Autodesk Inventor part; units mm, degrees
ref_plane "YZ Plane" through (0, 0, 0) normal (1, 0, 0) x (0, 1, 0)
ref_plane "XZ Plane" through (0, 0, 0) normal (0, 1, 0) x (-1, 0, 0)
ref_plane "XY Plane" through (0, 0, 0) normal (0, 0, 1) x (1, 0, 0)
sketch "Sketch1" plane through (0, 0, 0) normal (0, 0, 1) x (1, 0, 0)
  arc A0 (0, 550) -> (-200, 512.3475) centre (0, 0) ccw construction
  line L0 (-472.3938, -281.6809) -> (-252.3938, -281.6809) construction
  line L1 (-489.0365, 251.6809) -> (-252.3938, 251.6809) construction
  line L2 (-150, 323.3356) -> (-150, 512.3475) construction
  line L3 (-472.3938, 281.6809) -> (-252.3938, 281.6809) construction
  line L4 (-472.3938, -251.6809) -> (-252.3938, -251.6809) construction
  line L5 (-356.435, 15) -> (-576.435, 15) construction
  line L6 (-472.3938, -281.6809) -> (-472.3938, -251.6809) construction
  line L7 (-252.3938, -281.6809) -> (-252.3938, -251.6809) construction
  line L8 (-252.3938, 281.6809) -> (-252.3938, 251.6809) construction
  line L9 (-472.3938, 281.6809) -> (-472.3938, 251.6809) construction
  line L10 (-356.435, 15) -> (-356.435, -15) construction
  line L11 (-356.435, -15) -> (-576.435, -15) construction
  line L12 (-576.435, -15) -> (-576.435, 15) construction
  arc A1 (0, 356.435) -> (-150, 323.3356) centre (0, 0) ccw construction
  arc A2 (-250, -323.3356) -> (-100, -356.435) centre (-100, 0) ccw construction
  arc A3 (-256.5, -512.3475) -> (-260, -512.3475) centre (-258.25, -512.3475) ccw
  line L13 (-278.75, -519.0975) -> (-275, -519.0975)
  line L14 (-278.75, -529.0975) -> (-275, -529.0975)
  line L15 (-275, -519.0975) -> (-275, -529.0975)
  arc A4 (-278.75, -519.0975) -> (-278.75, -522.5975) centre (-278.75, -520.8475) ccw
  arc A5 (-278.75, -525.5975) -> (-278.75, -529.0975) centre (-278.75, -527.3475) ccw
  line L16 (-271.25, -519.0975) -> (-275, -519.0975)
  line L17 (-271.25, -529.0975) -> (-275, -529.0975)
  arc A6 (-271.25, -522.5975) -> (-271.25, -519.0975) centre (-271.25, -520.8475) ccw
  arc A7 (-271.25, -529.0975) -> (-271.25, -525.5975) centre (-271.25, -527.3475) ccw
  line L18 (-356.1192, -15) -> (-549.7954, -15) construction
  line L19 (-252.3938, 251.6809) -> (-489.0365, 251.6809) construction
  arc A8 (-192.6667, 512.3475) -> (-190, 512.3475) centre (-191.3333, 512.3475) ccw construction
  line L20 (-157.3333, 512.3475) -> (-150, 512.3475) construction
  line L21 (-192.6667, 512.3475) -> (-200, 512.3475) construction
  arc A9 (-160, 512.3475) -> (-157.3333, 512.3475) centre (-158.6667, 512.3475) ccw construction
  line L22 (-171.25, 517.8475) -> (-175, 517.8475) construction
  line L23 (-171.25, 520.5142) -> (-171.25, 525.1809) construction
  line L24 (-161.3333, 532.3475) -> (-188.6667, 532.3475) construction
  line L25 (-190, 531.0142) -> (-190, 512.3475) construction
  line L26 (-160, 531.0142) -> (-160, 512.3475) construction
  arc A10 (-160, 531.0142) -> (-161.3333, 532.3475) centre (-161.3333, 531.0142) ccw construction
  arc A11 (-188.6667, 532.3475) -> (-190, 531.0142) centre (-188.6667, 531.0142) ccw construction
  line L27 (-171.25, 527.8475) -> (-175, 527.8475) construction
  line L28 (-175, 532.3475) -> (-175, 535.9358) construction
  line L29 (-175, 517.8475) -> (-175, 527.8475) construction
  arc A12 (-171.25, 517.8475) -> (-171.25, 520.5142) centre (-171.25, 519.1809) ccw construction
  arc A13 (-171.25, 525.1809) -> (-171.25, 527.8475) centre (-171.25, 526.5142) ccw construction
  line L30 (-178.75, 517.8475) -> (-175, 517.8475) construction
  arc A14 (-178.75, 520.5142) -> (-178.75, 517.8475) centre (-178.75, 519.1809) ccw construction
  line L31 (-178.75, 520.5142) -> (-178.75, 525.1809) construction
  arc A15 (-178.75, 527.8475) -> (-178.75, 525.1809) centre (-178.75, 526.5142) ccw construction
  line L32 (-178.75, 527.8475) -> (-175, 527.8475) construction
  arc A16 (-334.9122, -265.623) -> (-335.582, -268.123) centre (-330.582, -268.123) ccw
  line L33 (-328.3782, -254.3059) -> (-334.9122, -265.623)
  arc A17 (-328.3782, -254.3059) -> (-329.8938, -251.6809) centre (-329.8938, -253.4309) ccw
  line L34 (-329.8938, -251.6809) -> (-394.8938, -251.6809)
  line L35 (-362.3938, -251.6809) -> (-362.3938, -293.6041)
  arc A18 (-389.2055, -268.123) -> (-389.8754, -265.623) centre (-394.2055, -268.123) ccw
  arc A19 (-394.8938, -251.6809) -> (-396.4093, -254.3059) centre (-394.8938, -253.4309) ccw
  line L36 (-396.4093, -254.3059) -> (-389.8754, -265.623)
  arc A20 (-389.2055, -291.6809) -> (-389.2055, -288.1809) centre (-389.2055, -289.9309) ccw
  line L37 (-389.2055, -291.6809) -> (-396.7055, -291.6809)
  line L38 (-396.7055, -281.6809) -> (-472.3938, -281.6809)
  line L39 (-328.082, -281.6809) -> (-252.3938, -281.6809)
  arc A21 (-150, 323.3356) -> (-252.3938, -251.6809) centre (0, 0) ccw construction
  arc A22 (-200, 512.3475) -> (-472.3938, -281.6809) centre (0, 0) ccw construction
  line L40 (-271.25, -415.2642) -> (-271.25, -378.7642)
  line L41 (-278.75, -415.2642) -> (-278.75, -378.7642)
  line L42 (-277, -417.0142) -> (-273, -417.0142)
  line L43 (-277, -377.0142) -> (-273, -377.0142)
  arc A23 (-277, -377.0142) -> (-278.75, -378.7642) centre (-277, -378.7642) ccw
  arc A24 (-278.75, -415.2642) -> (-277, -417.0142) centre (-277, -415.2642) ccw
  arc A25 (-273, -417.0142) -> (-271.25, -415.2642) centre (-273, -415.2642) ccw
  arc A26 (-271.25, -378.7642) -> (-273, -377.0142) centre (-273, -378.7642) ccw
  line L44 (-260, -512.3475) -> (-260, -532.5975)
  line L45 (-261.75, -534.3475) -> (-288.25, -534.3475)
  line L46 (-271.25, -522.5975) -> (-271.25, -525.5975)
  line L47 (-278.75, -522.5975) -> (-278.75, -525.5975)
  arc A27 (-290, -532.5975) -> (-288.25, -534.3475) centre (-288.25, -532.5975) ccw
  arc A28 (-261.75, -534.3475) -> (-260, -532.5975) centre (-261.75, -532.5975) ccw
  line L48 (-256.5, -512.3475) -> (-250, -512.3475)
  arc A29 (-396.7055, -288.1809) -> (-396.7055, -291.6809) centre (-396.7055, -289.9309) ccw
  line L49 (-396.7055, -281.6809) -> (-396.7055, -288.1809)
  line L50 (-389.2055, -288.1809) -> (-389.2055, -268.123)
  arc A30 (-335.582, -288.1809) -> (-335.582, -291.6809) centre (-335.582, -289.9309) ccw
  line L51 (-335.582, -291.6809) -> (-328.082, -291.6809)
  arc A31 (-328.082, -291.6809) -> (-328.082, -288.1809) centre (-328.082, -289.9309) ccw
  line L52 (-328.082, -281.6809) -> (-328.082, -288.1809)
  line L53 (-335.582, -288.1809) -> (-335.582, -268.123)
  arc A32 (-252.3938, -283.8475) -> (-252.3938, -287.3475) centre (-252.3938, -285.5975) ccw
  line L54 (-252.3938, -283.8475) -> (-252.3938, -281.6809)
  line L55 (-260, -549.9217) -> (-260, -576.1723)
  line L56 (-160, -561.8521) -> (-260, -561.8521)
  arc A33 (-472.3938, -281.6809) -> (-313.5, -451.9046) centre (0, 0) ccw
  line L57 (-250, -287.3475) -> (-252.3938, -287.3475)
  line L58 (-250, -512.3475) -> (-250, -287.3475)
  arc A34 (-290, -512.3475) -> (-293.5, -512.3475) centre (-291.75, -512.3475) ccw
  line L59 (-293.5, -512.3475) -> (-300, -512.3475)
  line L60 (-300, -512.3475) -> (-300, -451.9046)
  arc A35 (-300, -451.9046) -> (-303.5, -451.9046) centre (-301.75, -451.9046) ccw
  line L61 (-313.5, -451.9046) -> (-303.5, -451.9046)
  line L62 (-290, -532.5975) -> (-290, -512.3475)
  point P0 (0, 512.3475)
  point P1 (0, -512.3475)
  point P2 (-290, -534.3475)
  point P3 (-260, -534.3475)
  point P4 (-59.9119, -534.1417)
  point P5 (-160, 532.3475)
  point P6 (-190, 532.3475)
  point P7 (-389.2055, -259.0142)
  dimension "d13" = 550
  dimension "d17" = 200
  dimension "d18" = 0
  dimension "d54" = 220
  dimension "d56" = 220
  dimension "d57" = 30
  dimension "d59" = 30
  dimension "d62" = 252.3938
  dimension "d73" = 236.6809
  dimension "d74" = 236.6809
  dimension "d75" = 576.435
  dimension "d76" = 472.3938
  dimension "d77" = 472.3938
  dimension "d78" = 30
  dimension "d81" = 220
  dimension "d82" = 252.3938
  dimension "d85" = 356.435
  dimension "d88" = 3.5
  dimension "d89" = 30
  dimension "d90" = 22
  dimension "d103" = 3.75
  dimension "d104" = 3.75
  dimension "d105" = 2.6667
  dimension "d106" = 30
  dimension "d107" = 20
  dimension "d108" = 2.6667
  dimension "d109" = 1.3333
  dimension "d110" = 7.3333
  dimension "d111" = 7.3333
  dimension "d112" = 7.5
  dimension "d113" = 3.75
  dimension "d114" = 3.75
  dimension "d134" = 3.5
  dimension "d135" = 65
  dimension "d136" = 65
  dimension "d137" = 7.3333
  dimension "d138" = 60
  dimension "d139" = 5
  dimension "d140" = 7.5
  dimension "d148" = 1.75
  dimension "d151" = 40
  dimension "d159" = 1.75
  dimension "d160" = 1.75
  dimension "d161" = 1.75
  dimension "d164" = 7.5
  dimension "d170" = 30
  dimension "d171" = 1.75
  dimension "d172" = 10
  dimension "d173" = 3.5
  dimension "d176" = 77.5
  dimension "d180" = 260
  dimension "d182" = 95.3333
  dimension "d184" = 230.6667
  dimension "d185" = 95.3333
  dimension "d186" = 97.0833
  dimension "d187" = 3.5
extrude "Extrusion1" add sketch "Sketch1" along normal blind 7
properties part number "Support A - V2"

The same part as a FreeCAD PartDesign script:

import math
import FreeCAD as App
import Part
import Sketcher
from FreeCAD import Vector
Q = App.Units.Quantity

doc = App.newDocument("Part")
body = doc.addObject("PartDesign::Body", "Body")

sketch1 = doc.addObject("Sketcher::SketchObject", "Sketch")
body.addObject(sketch1)
sketch1.AttachmentSupport = (doc.XY_Plane, [""])
sketch1.MapMode = "FlatFace"
sketch1.addGeometry(Part.ArcOfCircle(Part.Circle(Vector(-258.25, -512.3475, 0), Vector(0, 0, 1), 1.75), math.radians(0), math.radians(180)), False)
sketch1.addGeometry(Part.LineSegment(Vector(-256.5, -512.3475, 0), Vector(-250, -512.3475, 0)), False)
sketch1.addGeometry(Part.LineSegment(Vector(-250, -512.3475, 0), Vector(-250, -287.3475, 0)), False)
sketch1.addGeometry(Part.LineSegment(Vector(-250, -287.3475, 0), Vector(-252.3938, -287.3475, 0)), False)
sketch1.addGeometry(Part.ArcOfCircle(Part.Circle(Vector(-252.3938, -285.5975, 0), Vector(0, 0, 1), 1.75), math.radians(90), math.radians(270)), False)
sketch1.addGeometry(Part.LineSegment(Vector(-252.3938, -283.8475, 0), Vector(-252.3938, -281.6809, 0)), False)
sketch1.addGeometry(Part.LineSegment(Vector(-252.3938, -281.6809, 0), Vector(-328.082, -281.6809, 0)), False)
sketch1.addGeometry(Part.LineSegment(Vector(-328.082, -281.6809, 0), Vector(-328.082, -288.1809, 0)), False)
sketch1.addGeometry(Part.ArcOfCircle(Part.Circle(Vector(-328.082, -289.9309, 0), Vector(0, 0, 1), 1.75), math.radians(-90), math.radians(90)), False)
sketch1.addGeometry(Part.LineSegment(Vector(-328.082, -291.6809, 0), Vector(-335.582, -291.6809, 0)), False)
sketch1.addGeometry(Part.ArcOfCircle(Part.Circle(Vector(-335.582, -289.9309, 0), Vector(0, 0, 1), 1.75), math.radians(90), math.radians(270)), False)
sketch1.addGeometry(Part.LineSegment(Vector(-335.582, -288.1809, 0), Vector(-335.582, -268.123, 0)), False)
sketch1.addGeometry(Part.ArcOfCircle(Part.Circle(Vector(-330.582, -268.123, 0), Vector(0, 0, 1), 5.000063), math.radians(150.000418), math.radians(180)), False)
sketch1.addGeometry(Part.LineSegment(Vector(-334.9122, -265.623, 0), Vector(-328.3782, -254.3059, 0)), False)
sketch1.addGeometry(Part.ArcOfCircle(Part.Circle(Vector(-329.8938, -253.4309, 0), Vector(0, 0, 1), 1.750048), math.radians(-29.999091), math.radians(90)), False)
sketch1.addGeometry(Part.LineSegment(Vector(-329.8938, -251.6809, 0), Vector(-394.8938, -251.6809, 0)), False)
sketch1.addGeometry(Part.ArcOfCircle(Part.Circle(Vector(-394.8938, -253.4309, 0), Vector(0, 0, 1), 1.75), math.radians(90), math.radians(210.000728)), False)
sketch1.addGeometry(Part.LineSegment(Vector(-396.4093, -254.3059, 0), Vector(-389.8754, -265.623, 0)), False)
sketch1.addGeometry(Part.ArcOfCircle(Part.Circle(Vector(-394.2055, -268.123, 0), Vector(0, 0, 1), 5), math.radians(0), math.radians(30.000155)), False)
sketch1.addGeometry(Part.LineSegment(Vector(-389.2055, -268.123, 0), Vector(-389.2055, -288.1809, 0)), False)
sketch1.addGeometry(Part.ArcOfCircle(Part.Circle(Vector(-389.2055, -289.9309, 0), Vector(0, 0, 1), 1.75), math.radians(-90), math.radians(90)), False)
sketch1.addGeometry(Part.LineSegment(Vector(-389.2055, -291.6809, 0), Vector(-396.7055, -291.6809, 0)), False)
sketch1.addGeometry(Part.ArcOfCircle(Part.Circle(Vector(-396.7055, -289.9309, 0), Vector(0, 0, 1), 1.75), math.radians(90), math.radians(270)), False)
sketch1.addGeometry(Part.LineSegment(Vector(-396.7055, -288.1809, 0), Vector(-396.7055, -281.6809, 0)), False)
sketch1.addGeometry(Part.LineSegment(Vector(-396.7055, -281.6809, 0), Vector(-472.3938, -281.6809, 0)), False)
sketch1.addGeometry(Part.ArcOfCircle(Part.Circle(Vector(0, 0, 0), Vector(0, 0, 1), 549.999964), math.radians(-149.193049), math.radians(-124.750225)), False)
sketch1.addGeometry(Part.LineSegment(Vector(-313.5, -451.9046, 0), Vector(-303.5, -451.9046, 0)), False)
sketch1.addGeometry(Part.ArcOfCircle(Part.Circle(Vector(-301.75, -451.9046, 0), Vector(0, 0, 1), 1.75), math.radians(0), math.radians(180)), False)
sketch1.addGeometry(Part.LineSegment(Vector(-300, -451.9046, 0), Vector(-300, -512.3475, 0)), False)
sketch1.addGeometry(Part.LineSegment(Vector(-300, -512.3475, 0), Vector(-293.5, -512.3475, 0)), False)
sketch1.addGeometry(Part.ArcOfCircle(Part.Circle(Vector(-291.75, -512.3475, 0), Vector(0, 0, 1), 1.75), math.radians(0), math.radians(180)), False)
sketch1.addGeometry(Part.LineSegment(Vector(-290, -512.3475, 0), Vector(-290, -532.5975, 0)), False)
sketch1.addGeometry(Part.ArcOfCircle(Part.Circle(Vector(-288.25, -532.5975, 0), Vector(0, 0, 1), 1.75), math.radians(180), math.radians(270)), False)
sketch1.addGeometry(Part.LineSegment(Vector(-288.25, -534.3475, 0), Vector(-261.75, -534.3475, 0)), False)
sketch1.addGeometry(Part.ArcOfCircle(Part.Circle(Vector(-261.75, -532.5975, 0), Vector(0, 0, 1), 1.75), math.radians(-90), math.radians(0)), False)
sketch1.addGeometry(Part.LineSegment(Vector(-260, -532.5975, 0), Vector(-260, -512.3475, 0)), False)
sketch1.addGeometry(Part.ArcOfCircle(Part.Circle(Vector(-278.75, -520.8475, 0), Vector(0, 0, 1), 1.75), math.radians(90), math.radians(270)), False)
sketch1.addGeometry(Part.LineSegment(Vector(-278.75, -519.0975, 0), Vector(-271.25, -519.0975, 0)), False)
sketch1.addGeometry(Part.ArcOfCircle(Part.Circle(Vector(-271.25, -520.8475, 0), Vector(0, 0, 1), 1.75), math.radians(-90), math.radians(90)), False)
sketch1.addGeometry(Part.LineSegment(Vector(-271.25, -522.5975, 0), Vector(-271.25, -525.5975, 0)), False)
sketch1.addGeometry(Part.ArcOfCircle(Part.Circle(Vector(-271.25, -527.3475, 0), Vector(0, 0, 1), 1.75), math.radians(-90), math.radians(90)), False)
sketch1.addGeometry(Part.LineSegment(Vector(-271.25, -529.0975, 0), Vector(-278.75, -529.0975, 0)), False)
sketch1.addGeometry(Part.ArcOfCircle(Part.Circle(Vector(-278.75, -527.3475, 0), Vector(0, 0, 1), 1.75), math.radians(90), math.radians(270)), False)
sketch1.addGeometry(Part.LineSegment(Vector(-278.75, -525.5975, 0), Vector(-278.75, -522.5975, 0)), False)
sketch1.addGeometry(Part.LineSegment(Vector(-271.25, -378.7642, 0), Vector(-271.25, -415.2642, 0)), False)
sketch1.addGeometry(Part.ArcOfCircle(Part.Circle(Vector(-273, -415.2642, 0), Vector(0, 0, 1), 1.75), math.radians(-90), math.radians(0)), False)
sketch1.addGeometry(Part.LineSegment(Vector(-273, -417.0142, 0), Vector(-277, -417.0142, 0)), False)
sketch1.addGeometry(Part.ArcOfCircle(Part.Circle(Vector(-277, -415.2642, 0), Vector(0, 0, 1), 1.75), math.radians(180), math.radians(270)), False)
sketch1.addGeometry(Part.LineSegment(Vector(-278.75, -415.2642, 0), Vector(-278.75, -378.7642, 0)), False)
sketch1.addGeometry(Part.ArcOfCircle(Part.Circle(Vector(-277, -378.7642, 0), Vector(0, 0, 1), 1.75), math.radians(90), math.radians(180)), False)
sketch1.addGeometry(Part.LineSegment(Vector(-277, -377.0142, 0), Vector(-273, -377.0142, 0)), False)
sketch1.addGeometry(Part.ArcOfCircle(Part.Circle(Vector(-273, -378.7642, 0), Vector(0, 0, 1), 1.75), math.radians(0), math.radians(90)), False)
sketch1.addConstraint(Sketcher.Constraint("Coincident", 0, 1, 1, 1))
sketch1.addConstraint(Sketcher.Constraint("Coincident", 1, 2, 2, 1))
sketch1.addConstraint(Sketcher.Constraint("Coincident", 2, 2, 3, 1))
sketch1.addConstraint(Sketcher.Constraint("Tangent", 3, 2, 4, 2))
sketch1.addConstraint(Sketcher.Constraint("Coincident", 4, 1, 5, 1))
sketch1.addConstraint(Sketcher.Constraint("Coincident", 5, 2, 6, 1))
sketch1.addConstraint(Sketcher.Constraint("Coincident", 6, 2, 7, 1))
sketch1.addConstraint(Sketcher.Constraint("Coincident", 7, 2, 8, 2))
sketch1.addConstraint(Sketcher.Constraint("Tangent", 8, 1, 9, 1))
sketch1.addConstraint(Sketcher.Constraint("Tangent", 9, 2, 10, 2))
sketch1.addConstraint(Sketcher.Constraint("Coincident", 10, 1, 11, 1))
sketch1.addConstraint(Sketcher.Constraint("Tangent", 11, 2, 12, 2))
sketch1.addConstraint(Sketcher.Constraint("Tangent", 12, 1, 13, 1))
sketch1.addConstraint(Sketcher.Constraint("Tangent", 13, 2, 14, 1))
sketch1.addConstraint(Sketcher.Constraint("Tangent", 14, 2, 15, 1))
sketch1.addConstraint(Sketcher.Constraint("Tangent", 15, 2, 16, 1))
sketch1.addConstraint(Sketcher.Constraint("Tangent", 16, 2, 17, 1))
sketch1.addConstraint(Sketcher.Constraint("Tangent", 17, 2, 18, 2))
sketch1.addConstraint(Sketcher.Constraint("Tangent", 18, 1, 19, 1))
sketch1.addConstraint(Sketcher.Constraint("Coincident", 19, 2, 20, 2))
sketch1.addConstraint(Sketcher.Constraint("Tangent", 20, 1, 21, 1))
sketch1.addConstraint(Sketcher.Constraint("Tangent", 21, 2, 22, 2))
sketch1.addConstraint(Sketcher.Constraint("Coincident", 22, 1, 23, 1))
sketch1.addConstraint(Sketcher.Constraint("Coincident", 23, 2, 24, 1))
sketch1.addConstraint(Sketcher.Constraint("Coincident", 24, 2, 25, 1))
sketch1.addConstraint(Sketcher.Constraint("Coincident", 25, 2, 26, 1))
sketch1.addConstraint(Sketcher.Constraint("Coincident", 26, 2, 27, 2))
sketch1.addConstraint(Sketcher.Constraint("Tangent", 27, 1, 28, 1))
sketch1.addConstraint(Sketcher.Constraint("Coincident", 28, 2, 29, 1))
sketch1.addConstraint(Sketcher.Constraint("Coincident", 29, 2, 30, 2))
sketch1.addConstraint(Sketcher.Constraint("Tangent", 30, 1, 31, 1))
sketch1.addConstraint(Sketcher.Constraint("Tangent", 31, 2, 32, 1))
sketch1.addConstraint(Sketcher.Constraint("Tangent", 32, 2, 33, 1))
sketch1.addConstraint(Sketcher.Constraint("Tangent", 33, 2, 34, 1))
sketch1.addConstraint(Sketcher.Constraint("Tangent", 34, 2, 35, 1))
sketch1.addConstraint(Sketcher.Constraint("Tangent", 35, 2, 0, 2))
sketch1.addConstraint(Sketcher.Constraint("Tangent", 36, 1, 37, 1))
sketch1.addConstraint(Sketcher.Constraint("Tangent", 37, 2, 38, 2))
sketch1.addConstraint(Sketcher.Constraint("Coincident", 38, 1, 39, 1))
sketch1.addConstraint(Sketcher.Constraint("Coincident", 39, 2, 40, 2))
sketch1.addConstraint(Sketcher.Constraint("Tangent", 40, 1, 41, 1))
sketch1.addConstraint(Sketcher.Constraint("Tangent", 41, 2, 42, 2))
sketch1.addConstraint(Sketcher.Constraint("Coincident", 42, 1, 43, 1))
sketch1.addConstraint(Sketcher.Constraint("Coincident", 43, 2, 36, 2))
sketch1.addConstraint(Sketcher.Constraint("Tangent", 44, 2, 45, 2))
sketch1.addConstraint(Sketcher.Constraint("Tangent", 45, 1, 46, 1))
sketch1.addConstraint(Sketcher.Constraint("Tangent", 46, 2, 47, 2))
sketch1.addConstraint(Sketcher.Constraint("Tangent", 47, 1, 48, 1))
sketch1.addConstraint(Sketcher.Constraint("Tangent", 48, 2, 49, 2))
sketch1.addConstraint(Sketcher.Constraint("Tangent", 49, 1, 50, 1))
sketch1.addConstraint(Sketcher.Constraint("Tangent", 50, 2, 51, 2))
sketch1.addConstraint(Sketcher.Constraint("Tangent", 51, 1, 44, 1))
sketch1.addConstraint(Sketcher.Constraint("Horizontal", 1))
sketch1.addConstraint(Sketcher.Constraint("Vertical", 2))
sketch1.addConstraint(Sketcher.Constraint("Horizontal", 3))
sketch1.addConstraint(Sketcher.Constraint("Vertical", 5))
sketch1.addConstraint(Sketcher.Constraint("Horizontal", 6))
sketch1.addConstraint(Sketcher.Constraint("Vertical", 7))
sketch1.addConstraint(Sketcher.Constraint("Horizontal", 9))
sketch1.addConstraint(Sketcher.Constraint("Vertical", 11))
sketch1.addConstraint(Sketcher.Constraint("Horizontal", 15))
sketch1.addConstraint(Sketcher.Constraint("Vertical", 19))
sketch1.addConstraint(Sketcher.Constraint("Horizontal", 21))
sketch1.addConstraint(Sketcher.Constraint("Vertical", 23))
sketch1.addConstraint(Sketcher.Constraint("Horizontal", 24))
sketch1.addConstraint(Sketcher.Constraint("Horizontal", 26))
sketch1.addConstraint(Sketcher.Constraint("Vertical", 28))
sketch1.addConstraint(Sketcher.Constraint("Horizontal", 29))
sketch1.addConstraint(Sketcher.Constraint("Vertical", 31))
sketch1.addConstraint(Sketcher.Constraint("Horizontal", 33))
sketch1.addConstraint(Sketcher.Constraint("Vertical", 35))
sketch1.addConstraint(Sketcher.Constraint("Horizontal", 37))
sketch1.addConstraint(Sketcher.Constraint("Vertical", 39))
sketch1.addConstraint(Sketcher.Constraint("Horizontal", 41))
sketch1.addConstraint(Sketcher.Constraint("Vertical", 43))
sketch1.addConstraint(Sketcher.Constraint("Vertical", 44))
sketch1.addConstraint(Sketcher.Constraint("Horizontal", 46))
sketch1.addConstraint(Sketcher.Constraint("Vertical", 48))
sketch1.addConstraint(Sketcher.Constraint("Horizontal", 50))
sketch1.addConstraint(Sketcher.Constraint("Coincident", 25, 3, -1, 1))
sketch1.addConstraint(Sketcher.Constraint("Equal", 0, 4))
sketch1.addConstraint(Sketcher.Constraint("Equal", 4, 8))
sketch1.addConstraint(Sketcher.Constraint("Equal", 8, 10))
sketch1.addConstraint(Sketcher.Constraint("Equal", 10, 14))
sketch1.addConstraint(Sketcher.Constraint("Equal", 14, 16))
sketch1.addConstraint(Sketcher.Constraint("Equal", 12, 18))
sketch1.addConstraint(Sketcher.Constraint("Equal", 16, 20))
sketch1.addConstraint(Sketcher.Constraint("Equal", 20, 22))
sketch1.addConstraint(Sketcher.Constraint("Equal", 22, 27))
sketch1.addConstraint(Sketcher.Constraint("Equal", 27, 30))
sketch1.addConstraint(Sketcher.Constraint("Equal", 30, 32))
sketch1.addConstraint(Sketcher.Constraint("Equal", 32, 34))
sketch1.addConstraint(Sketcher.Constraint("Equal", 34, 36))
sketch1.addConstraint(Sketcher.Constraint("Equal", 36, 38))
sketch1.addConstraint(Sketcher.Constraint("Equal", 38, 40))
sketch1.addConstraint(Sketcher.Constraint("Equal", 40, 42))
sketch1.addConstraint(Sketcher.Constraint("Equal", 42, 45))
sketch1.addConstraint(Sketcher.Constraint("Equal", 45, 47))
sketch1.addConstraint(Sketcher.Constraint("Equal", 47, 49))
sketch1.addConstraint(Sketcher.Constraint("Equal", 49, 51))
sketch1.addConstraint(Sketcher.Constraint("Horizontal", 12, 3, 18, 3))
sketch1.addConstraint(Sketcher.Constraint("Horizontal", 10, 3, 20, 3))
sketch1.addConstraint(Sketcher.Constraint("Horizontal", 0, 3, 30, 3))
sketch1.addConstraint(Sketcher.Constraint("Horizontal", 30, 3, 0, 1))
sketch1.addConstraint(Sketcher.Constraint("Horizontal", 13, 2, 16, 2))
sketch1.addConstraint(Sketcher.Constraint("Horizontal", 6, 2, 23, 2))
sketch1.addConstraint(Sketcher.Constraint("Horizontal", 27, 3, 25, 2))
sketch1.addConstraint(Sketcher.Constraint("Horizontal", 1, 2, 28, 2))
sketch1.addConstraint(Sketcher.Constraint("Vertical", 38, 3, 40, 3))
sketch1.addConstraint(Sketcher.Constraint("Vertical", 36, 3, 42, 3))
sketch1.addConstraint(Sketcher.Constraint("Vertical", 3, 2, 4, 1))
sketch1.addConstraint(Sketcher.Constraint("Vertical", 8, 3, 6, 2))
sketch1.addConstraint(Sketcher.Constraint("Vertical", 9, 2, 10, 1))
sketch1.addConstraint(Sketcher.Constraint("Vertical", 20, 3, 18, 1))
sketch1.addConstraint(Sketcher.Constraint("Vertical", 21, 2, 22, 1))
sketch1.addConstraint(Sketcher.Constraint("Vertical", 37, 2, 38, 1))
sketch1.addConstraint(Sketcher.Constraint("Vertical", 41, 2, 42, 1))
sketch1.addConstraint(Sketcher.Constraint("Vertical", 40, 1, 44, 2))
sketch1.addConstraint(Sketcher.Constraint("Vertical", 43, 2, 47, 1))
sketch1.addConstraint(Sketcher.Constraint("Equal", 9, 21))
sketch1.addConstraint(Sketcher.Constraint("Equal", 6, 24))
sketch1.addConstraint(Sketcher.Constraint("Equal", 1, 29))
sketch1.addConstraint(Sketcher.Constraint("Equal", 21, 37))
sketch1.addConstraint(Sketcher.Constraint("Equal", 29, 7))
sketch1.addConstraint(Sketcher.Constraint("Radius", 12, Q("5 mm")))
sketch1.addConstraint(Sketcher.Constraint("Radius", 25, Q("550 mm")))
sketch1.addConstraint(Sketcher.Constraint("DistanceX", 15, 2, 15, 1, Q("65 mm")))
sketch1.addConstraint(Sketcher.Constraint("DistanceX", 26, 1, 26, 2, Q("10 mm")))
sketch1.addConstraint(Sketcher.Constraint("Angle", 13, Q("59.9997 deg")))
sketch1.addConstraint(Sketcher.Constraint("Radius", 0, Q("1.75 mm")))
sketch1.addConstraint(Sketcher.Constraint("DistanceX", 9, 2, 9, 1, Q("7.5 mm")))
sketch1.addConstraint(Sketcher.Constraint("DistanceX", 34, 2, -1, 1, Q("260 mm")))
sketch1.addConstraint(Sketcher.Constraint("DistanceY", 2, 1, 2, 2, Q("225 mm")))
sketch1.addConstraint(Sketcher.Constraint("DistanceY", 39, 2, 39, 1, Q("3 mm")))
sketch1.addConstraint(Sketcher.Constraint("DistanceX", 1, 1, 1, 2, Q("6.5 mm")))
sketch1.addConstraint(Sketcher.Constraint("DistanceX", 33, 1, 33, 2, Q("26.5 mm")))
sketch1.addConstraint(Sketcher.Constraint("DistanceY", 44, 2, 44, 1, Q("36.5 mm")))
sketch1.addConstraint(Sketcher.Constraint("DistanceX", 45, 3, -1, 1, Q("273 mm")))
sketch1.addConstraint(Sketcher.Constraint("DistanceY", 31, 2, 31, 1, Q("20.25 mm")))
sketch1.addConstraint(Sketcher.Constraint("DistanceX", 4, 3, -1, 1, Q("252.3938 mm")))
sketch1.addConstraint(Sketcher.Constraint("DistanceX", 24, 2, -1, 1, Q("472.3938 mm")))
sketch1.addConstraint(Sketcher.Constraint("DistanceY", 11, 1, 11, 2, Q("20.058 mm")))
sketch1.addConstraint(Sketcher.Constraint("DistanceY", 28, 2, 28, 1, Q("60.443 mm")))
sketch1.addConstraint(Sketcher.Constraint("Distance", 13, Q("13.068 mm")))
sketch1.addConstraint(Sketcher.Constraint("DistanceY", 36, 3, -1, 1, Q("520.8475 mm")))
sketch1.addConstraint(Sketcher.Constraint("DistanceY", 45, 3, -1, 1, Q("415.2642 mm")))
pad1 = doc.addObject("PartDesign::Pad", "Pad")
body.addObject(pad1)
pad1.Profile = sketch1
pad1.Length = 7

doc.recompute()
